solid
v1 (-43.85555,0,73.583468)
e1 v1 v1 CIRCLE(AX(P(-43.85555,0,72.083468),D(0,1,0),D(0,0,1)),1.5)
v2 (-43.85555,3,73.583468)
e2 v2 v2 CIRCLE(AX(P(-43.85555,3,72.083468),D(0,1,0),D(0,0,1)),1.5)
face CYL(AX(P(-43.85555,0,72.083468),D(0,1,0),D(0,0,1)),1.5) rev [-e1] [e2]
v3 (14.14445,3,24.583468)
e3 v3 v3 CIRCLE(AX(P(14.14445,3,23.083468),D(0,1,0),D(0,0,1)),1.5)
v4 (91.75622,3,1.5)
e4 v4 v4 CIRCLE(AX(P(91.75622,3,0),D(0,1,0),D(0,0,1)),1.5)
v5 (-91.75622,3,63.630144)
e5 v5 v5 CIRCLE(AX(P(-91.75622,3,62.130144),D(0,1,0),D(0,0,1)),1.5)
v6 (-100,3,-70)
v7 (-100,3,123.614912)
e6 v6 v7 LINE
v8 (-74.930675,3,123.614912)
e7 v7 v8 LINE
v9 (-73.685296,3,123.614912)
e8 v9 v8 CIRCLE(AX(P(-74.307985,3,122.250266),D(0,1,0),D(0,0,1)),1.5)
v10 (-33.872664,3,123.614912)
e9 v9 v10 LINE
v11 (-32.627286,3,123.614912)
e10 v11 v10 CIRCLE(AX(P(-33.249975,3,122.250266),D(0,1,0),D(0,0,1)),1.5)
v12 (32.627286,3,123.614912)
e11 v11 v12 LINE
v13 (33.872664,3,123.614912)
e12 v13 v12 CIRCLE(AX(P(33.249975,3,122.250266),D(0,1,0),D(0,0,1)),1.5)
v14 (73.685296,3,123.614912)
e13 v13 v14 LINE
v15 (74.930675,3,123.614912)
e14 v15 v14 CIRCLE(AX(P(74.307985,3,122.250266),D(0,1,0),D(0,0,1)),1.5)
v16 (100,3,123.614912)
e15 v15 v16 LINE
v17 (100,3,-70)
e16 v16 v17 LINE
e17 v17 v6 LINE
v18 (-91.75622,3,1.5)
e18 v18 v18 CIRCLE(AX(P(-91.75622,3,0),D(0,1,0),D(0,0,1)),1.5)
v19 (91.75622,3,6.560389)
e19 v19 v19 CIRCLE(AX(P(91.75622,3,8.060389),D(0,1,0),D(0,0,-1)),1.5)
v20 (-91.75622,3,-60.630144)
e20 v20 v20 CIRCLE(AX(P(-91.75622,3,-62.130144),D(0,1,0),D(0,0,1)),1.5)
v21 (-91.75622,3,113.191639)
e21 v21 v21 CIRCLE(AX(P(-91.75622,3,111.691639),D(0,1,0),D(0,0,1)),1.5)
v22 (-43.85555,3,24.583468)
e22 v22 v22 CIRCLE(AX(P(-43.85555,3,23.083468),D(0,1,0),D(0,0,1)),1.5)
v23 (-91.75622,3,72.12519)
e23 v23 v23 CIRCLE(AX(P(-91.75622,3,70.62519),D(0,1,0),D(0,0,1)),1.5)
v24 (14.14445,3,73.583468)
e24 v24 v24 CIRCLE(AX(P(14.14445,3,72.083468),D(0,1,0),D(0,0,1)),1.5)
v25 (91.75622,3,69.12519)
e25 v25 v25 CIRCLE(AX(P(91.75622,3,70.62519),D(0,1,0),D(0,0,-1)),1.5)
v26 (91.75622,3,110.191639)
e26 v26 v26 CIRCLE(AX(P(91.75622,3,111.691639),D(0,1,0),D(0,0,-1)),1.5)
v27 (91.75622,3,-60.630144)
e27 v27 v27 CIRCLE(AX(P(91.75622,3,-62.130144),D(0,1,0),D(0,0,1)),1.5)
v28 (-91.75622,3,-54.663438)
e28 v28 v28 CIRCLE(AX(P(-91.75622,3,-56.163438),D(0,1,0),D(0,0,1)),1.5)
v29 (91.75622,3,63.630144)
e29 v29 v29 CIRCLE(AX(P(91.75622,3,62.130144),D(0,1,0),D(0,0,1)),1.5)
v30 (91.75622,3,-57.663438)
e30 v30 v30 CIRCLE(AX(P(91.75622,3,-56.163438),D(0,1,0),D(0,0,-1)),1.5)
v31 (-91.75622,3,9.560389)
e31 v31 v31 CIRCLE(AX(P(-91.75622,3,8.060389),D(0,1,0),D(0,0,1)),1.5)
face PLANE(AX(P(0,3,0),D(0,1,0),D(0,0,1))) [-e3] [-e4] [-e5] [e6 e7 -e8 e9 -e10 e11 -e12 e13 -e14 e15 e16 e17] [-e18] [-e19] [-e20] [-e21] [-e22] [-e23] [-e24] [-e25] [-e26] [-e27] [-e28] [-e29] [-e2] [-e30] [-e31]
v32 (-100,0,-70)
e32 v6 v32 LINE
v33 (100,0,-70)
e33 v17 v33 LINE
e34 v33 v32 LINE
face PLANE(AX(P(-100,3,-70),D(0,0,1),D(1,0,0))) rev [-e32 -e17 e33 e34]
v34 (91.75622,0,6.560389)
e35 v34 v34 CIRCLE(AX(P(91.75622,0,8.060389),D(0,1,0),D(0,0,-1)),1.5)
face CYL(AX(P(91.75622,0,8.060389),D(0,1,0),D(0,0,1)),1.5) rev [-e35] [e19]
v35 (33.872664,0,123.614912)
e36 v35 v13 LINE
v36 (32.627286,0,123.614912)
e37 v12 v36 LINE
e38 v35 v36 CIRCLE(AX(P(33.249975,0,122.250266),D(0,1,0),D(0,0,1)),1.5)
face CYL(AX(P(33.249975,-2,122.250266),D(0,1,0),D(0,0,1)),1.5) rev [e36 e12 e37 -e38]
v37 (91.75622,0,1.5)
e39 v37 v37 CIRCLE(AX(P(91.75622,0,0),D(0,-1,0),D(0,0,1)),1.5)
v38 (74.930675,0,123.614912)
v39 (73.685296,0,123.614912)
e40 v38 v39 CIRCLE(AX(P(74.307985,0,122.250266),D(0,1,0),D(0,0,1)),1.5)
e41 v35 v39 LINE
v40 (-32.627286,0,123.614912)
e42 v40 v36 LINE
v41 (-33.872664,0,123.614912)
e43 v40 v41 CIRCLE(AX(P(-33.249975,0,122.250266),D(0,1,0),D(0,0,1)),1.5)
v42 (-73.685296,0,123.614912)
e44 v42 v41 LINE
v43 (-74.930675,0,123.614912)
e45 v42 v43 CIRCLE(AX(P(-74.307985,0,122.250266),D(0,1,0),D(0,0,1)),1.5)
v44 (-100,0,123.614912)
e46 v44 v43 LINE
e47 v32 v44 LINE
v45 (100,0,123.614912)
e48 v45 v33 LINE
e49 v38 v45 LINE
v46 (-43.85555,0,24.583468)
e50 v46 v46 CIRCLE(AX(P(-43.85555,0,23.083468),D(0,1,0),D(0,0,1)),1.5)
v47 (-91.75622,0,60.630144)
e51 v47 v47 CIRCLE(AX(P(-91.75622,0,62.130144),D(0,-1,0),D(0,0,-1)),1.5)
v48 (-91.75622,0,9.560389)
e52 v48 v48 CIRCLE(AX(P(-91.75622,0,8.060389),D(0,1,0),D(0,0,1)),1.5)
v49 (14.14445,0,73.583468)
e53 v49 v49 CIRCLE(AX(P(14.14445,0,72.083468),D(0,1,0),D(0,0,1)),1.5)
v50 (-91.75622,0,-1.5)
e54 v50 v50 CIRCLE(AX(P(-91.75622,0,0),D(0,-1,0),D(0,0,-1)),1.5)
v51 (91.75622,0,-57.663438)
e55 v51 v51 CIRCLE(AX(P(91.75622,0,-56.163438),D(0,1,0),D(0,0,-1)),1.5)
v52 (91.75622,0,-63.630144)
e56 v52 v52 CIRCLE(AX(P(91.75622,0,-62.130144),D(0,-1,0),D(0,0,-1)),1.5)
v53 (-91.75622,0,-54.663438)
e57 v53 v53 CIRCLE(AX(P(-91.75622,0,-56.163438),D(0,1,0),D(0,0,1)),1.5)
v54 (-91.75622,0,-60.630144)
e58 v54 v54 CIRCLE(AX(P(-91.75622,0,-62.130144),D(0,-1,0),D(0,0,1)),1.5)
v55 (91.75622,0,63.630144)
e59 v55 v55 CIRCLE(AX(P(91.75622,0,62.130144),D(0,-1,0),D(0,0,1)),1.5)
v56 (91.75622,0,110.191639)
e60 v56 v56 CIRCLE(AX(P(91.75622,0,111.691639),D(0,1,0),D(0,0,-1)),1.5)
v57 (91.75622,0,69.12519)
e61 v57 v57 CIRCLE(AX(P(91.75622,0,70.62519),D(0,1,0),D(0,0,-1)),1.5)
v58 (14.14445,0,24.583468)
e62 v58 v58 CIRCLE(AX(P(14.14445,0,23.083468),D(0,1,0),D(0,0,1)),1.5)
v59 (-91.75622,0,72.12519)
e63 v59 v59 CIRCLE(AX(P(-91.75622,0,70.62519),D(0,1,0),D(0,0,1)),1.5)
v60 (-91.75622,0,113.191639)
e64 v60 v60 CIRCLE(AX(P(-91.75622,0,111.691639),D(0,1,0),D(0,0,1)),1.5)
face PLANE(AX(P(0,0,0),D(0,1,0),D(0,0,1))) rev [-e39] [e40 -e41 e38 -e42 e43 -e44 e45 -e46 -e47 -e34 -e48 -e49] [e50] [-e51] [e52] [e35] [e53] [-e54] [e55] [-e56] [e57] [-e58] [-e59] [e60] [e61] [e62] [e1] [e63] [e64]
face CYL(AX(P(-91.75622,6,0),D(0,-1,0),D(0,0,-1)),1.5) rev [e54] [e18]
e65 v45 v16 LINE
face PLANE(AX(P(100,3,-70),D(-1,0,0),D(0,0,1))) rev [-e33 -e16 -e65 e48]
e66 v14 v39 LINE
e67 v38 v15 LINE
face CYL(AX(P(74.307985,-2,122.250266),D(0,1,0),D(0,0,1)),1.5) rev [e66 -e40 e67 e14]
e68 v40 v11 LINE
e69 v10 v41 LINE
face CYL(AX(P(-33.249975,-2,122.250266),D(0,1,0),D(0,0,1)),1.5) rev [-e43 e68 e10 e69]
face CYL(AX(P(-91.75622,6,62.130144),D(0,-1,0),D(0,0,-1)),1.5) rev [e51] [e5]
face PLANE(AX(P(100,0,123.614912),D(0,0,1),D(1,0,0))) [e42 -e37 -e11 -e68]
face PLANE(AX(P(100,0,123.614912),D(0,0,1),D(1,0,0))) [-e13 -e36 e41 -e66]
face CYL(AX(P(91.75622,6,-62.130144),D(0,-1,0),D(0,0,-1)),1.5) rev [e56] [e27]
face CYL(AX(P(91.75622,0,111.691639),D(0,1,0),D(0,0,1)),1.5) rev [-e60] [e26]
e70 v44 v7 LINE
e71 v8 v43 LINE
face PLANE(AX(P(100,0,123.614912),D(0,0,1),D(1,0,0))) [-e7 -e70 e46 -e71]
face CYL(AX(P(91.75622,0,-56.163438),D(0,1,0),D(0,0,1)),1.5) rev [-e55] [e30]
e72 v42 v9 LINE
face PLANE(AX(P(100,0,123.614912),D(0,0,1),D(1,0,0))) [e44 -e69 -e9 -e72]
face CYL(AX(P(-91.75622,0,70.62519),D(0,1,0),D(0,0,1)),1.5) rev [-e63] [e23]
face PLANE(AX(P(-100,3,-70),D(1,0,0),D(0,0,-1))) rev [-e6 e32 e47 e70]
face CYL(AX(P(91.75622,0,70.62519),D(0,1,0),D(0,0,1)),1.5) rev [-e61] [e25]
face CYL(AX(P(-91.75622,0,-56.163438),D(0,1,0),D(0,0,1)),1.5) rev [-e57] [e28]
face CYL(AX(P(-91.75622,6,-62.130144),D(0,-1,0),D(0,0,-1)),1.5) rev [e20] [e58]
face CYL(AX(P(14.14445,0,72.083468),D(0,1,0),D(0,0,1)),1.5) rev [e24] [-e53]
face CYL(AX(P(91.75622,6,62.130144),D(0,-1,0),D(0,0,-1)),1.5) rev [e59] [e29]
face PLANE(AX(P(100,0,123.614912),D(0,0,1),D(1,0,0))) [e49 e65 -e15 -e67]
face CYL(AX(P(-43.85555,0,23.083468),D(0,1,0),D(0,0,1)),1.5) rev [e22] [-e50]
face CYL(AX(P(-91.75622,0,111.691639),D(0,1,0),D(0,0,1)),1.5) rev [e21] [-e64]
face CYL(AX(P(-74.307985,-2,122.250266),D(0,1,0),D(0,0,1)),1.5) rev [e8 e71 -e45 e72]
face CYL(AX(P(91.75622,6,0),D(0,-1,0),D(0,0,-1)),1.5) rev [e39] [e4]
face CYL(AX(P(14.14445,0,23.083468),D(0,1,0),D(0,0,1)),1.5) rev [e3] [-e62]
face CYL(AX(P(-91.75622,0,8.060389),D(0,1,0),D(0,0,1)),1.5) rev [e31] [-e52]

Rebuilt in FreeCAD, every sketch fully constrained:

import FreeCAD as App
import Part
import Sketcher
from FreeCAD import Vector
Q = App.Units.Quantity


def add_polygon(sketch, points):
    """Adds a closed chain of lines whose ends are joined by coincident constraints."""
    first, n = sketch.GeometryCount, len(points)
    for a, b in zip(points, points[1:] + points[:1]):
        sketch.addGeometry(Part.LineSegment(App.Vector(*a, 0), App.Vector(*b, 0)), False)
    for i in range(n):
        sketch.addConstraint(Sketcher.Constraint("Coincident", first + i, 2, first + (i + 1) % n, 1))

doc = App.newDocument("Part")
body = doc.addObject("PartDesign::Body", "Body")

sketch1 = body.newObject("Sketcher::SketchObject", "Sketch")
sketch1.AttachmentSupport = (doc.getObject("XZ_Plane"), [""])
sketch1.MapMode = "FlatFace"
add_polygon(sketch1, [(-100, -70), (-100, 70), (100, 70), (100, -70)])
sketch1.addConstraint(Sketcher.Constraint("Vertical", 0))
sketch1.addConstraint(Sketcher.Constraint("Horizontal", 1))
sketch1.addConstraint(Sketcher.Constraint("Vertical", 2))
sketch1.addConstraint(Sketcher.Constraint("Horizontal", 3))
sketch1.addConstraint(Sketcher.Constraint("Symmetric", 0, 2, 2, 2, -1, 1))
sketch1.addConstraint(Sketcher.Constraint("DistanceX", 1, 1, 1, 2, Q("200 mm")))
sketch1.addConstraint(Sketcher.Constraint("DistanceY", 0, 1, 0, 2, Q("140 mm")))
pad1 = body.newObject("PartDesign::Pad", "Pad")
pad1.Profile = sketch1
pad1.Length = 3
pad1.Reversed = True

sketch2 = body.newObject("Sketcher::SketchObject", "Sketch001")
sketch2.AttachmentSupport = (doc.getObject("XZ_Plane"), [""])
sketch2.MapMode = "FlatFace"
sketch2.addGeometry(Part.Circle(Vector(91.75622, -62.130144, 0), Vector(0, 0, 1), 1.5), False)
sketch2.addGeometry(Part.Circle(Vector(-91.75622, -62.130144, 0), Vector(0, 0, 1), 1.5), False)
sketch2.addGeometry(Part.Circle(Vector(91.75622, 62.130144, 0), Vector(0, 0, 1), 1.5), False)
sketch2.addGeometry(Part.Circle(Vector(-91.75622, 62.130144, 0), Vector(0, 0, 1), 1.5), False)
sketch2.addGeometry(Part.Circle(Vector(-91.75622, 0, 0), Vector(0, 0, 1), 1.5), False)
sketch2.addGeometry(Part.Circle(Vector(91.75622, 0, 0), Vector(0, 0, 1), 1.5), False)
add_polygon(sketch2, [(-80, 60.210911), (-80, -70), (80, -70), (80, 60.210911)])
sketch2.addConstraint(Sketcher.Constraint("Vertical", 6))
sketch2.addConstraint(Sketcher.Constraint("Horizontal", 7))
sketch2.addConstraint(Sketcher.Constraint("Vertical", 8))
sketch2.addConstraint(Sketcher.Constraint("Horizontal", 9))
sketch2.addConstraint(Sketcher.Constraint("Equal", 0, 1))
sketch2.addConstraint(Sketcher.Constraint("Equal", 1, 2))
sketch2.addConstraint(Sketcher.Constraint("Equal", 2, 3))
sketch2.addConstraint(Sketcher.Constraint("Equal", 3, 4))
sketch2.addConstraint(Sketcher.Constraint("Equal", 4, 5))
sketch2.addConstraint(Sketcher.Constraint("Symmetric", 1, 3, 2, 3, -1, 1))
sketch2.addConstraint(Sketcher.Constraint("Symmetric", 0, 3, 3, 3, -1, 1))
sketch2.addConstraint(Sketcher.Constraint("Symmetric", 4, 3, 5, 3, -1, 1))
sketch2.addConstraint(Sketcher.Constraint("Symmetric", 0, 3, 1, 3, -2))
sketch2.addConstraint(Sketcher.Constraint("PointOnObject", 4, 3, -1))
sketch2.addConstraint(Sketcher.Constraint("Vertical", 3, 3, 4, 3))
sketch2.addConstraint(Sketcher.Constraint("Diameter", 0, Q("3 mm")))
sketch2.addConstraint(Sketcher.Constraint("DistanceX", 7, 1, 7, 2, Q("160 mm")))
sketch2.addConstraint(Sketcher.Constraint("DistanceX", 6, 2, -1, 1, Q("80 mm")))
sketch2.addConstraint(Sketcher.Constraint("DistanceY", 6, 2, -1, 1, Q("70 mm")))
sketch2.addConstraint(Sketcher.Constraint("DistanceY", 6, 2, 6, 1, Q("130.210911 mm")))
sketch2.addConstraint(Sketcher.Constraint("DistanceX", -1, 1, 0, 3, Q("91.75622 mm")))
sketch2.addConstraint(Sketcher.Constraint("DistanceY", 0, 3, -1, 1, Q("62.130144 mm")))
pocket1 = body.newObject("PartDesign::Pocket", "Pocket")
pocket1.Profile = sketch2
pocket1.Length = 6

sketch3 = body.newObject("Sketcher::SketchObject", "Sketch002")
sketch3.AttachmentSupport = (doc.getObject("XZ_Plane"), [""])
sketch3.MapMode = "FlatFace"
sketch3.AttachmentOffset = App.Placement(Vector(0, 0, -3), App.Rotation())
add_polygon(sketch3, [(81.941508, 70), (81.941508, 123.614912), (100, 123.614912), (100, 70)])
add_polygon(sketch3, [(-100, 70), (-100, 123.614912), (-81.941508, 123.614912), (-81.941508, 70)])
sketch3.addConstraint(Sketcher.Constraint("Vertical", 0))
sketch3.addConstraint(Sketcher.Constraint("Horizontal", 1))
sketch3.addConstraint(Sketcher.Constraint("Vertical", 2))
sketch3.addConstraint(Sketcher.Constraint("Horizontal", 3))
sketch3.addConstraint(Sketcher.Constraint("Vertical", 4))
sketch3.addConstraint(Sketcher.Constraint("Horizontal", 5))
sketch3.addConstraint(Sketcher.Constraint("Vertical", 6))
sketch3.addConstraint(Sketcher.Constraint("Horizontal", 7))
sketch3.addConstraint(Sketcher.Constraint("Symmetric", 1, 2, 4, 2, -2))
sketch3.addConstraint(Sketcher.Constraint("Symmetric", 3, 2, 6, 2, -2))
sketch3.addConstraint(Sketcher.Constraint("DistanceX", -1, 1, 1, 2, Q("100 mm")))
sketch3.addConstraint(Sketcher.Constraint("DistanceY", -1, 1, 2, 2, Q("70 mm")))
sketch3.addConstraint(Sketcher.Constraint("DistanceX", 1, 1, 1, 2, Q("18.058492 mm")))
sketch3.addConstraint(Sketcher.Constraint("DistanceY", 0, 1, 0, 2, Q("53.614912 mm")))
pad2 = body.newObject("PartDesign::Pad", "Pad001")
pad2.Profile = sketch3
pad2.Length = 3

sketch4 = body.newObject("Sketcher::SketchObject", "Sketch003")
sketch4.AttachmentSupport = (doc.getObject("XZ_Plane"), [""])
sketch4.MapMode = "FlatFace"
sketch4.AttachmentOffset = App.Placement(Vector(0, 0, -3), App.Rotation())
sketch4.addGeometry(Part.Circle(Vector(-91.75622, 111.691639, 0), Vector(0, 0, 1), 1.5), False)
sketch4.addGeometry(Part.Circle(Vector(91.75622, 111.691639, 0), Vector(0, 0, 1), 1.5), False)
sketch4.addConstraint(Sketcher.Constraint("Equal", 0, 1))
sketch4.addConstraint(Sketcher.Constraint("Symmetric", 0, 3, 1, 3, -2))
sketch4.addConstraint(Sketcher.Constraint("Diameter", 0, Q("3 mm")))
sketch4.addConstraint(Sketcher.Constraint("DistanceX", 0, 3, -1, 1, Q("91.75622 mm")))
sketch4.addConstraint(Sketcher.Constraint("DistanceY", -1, 1, 0, 3, Q("111.691639 mm")))
pocket2 = body.newObject("PartDesign::Pocket", "Pocket001")
pocket2.Profile = sketch4
pocket2.Length = 3
pocket2.Reversed = True

sketch5 = body.newObject("Sketcher::SketchObject", "Sketch004")
sketch5.AttachmentSupport = (doc.getObject("XY_Plane"), [""])
sketch5.MapMode = "FlatFace"
sketch5.AttachmentOffset = App.Placement(Vector(0, 0, 60.210911), App.Rotation())
add_polygon(sketch5, [(80, 3), (80, 0), (-80, 0), (-80, 3)])
sketch5.addConstraint(Sketcher.Constraint("Vertical", 0))
sketch5.addConstraint(Sketcher.Constraint("Horizontal", 1))
sketch5.addConstraint(Sketcher.Constraint("Vertical", 2))
sketch5.addConstraint(Sketcher.Constraint("Horizontal", 3))
sketch5.addConstraint(Sketcher.Constraint("Symmetric", 0, 2, 1, 2, -1, 1))
sketch5.addConstraint(Sketcher.Constraint("DistanceX", 1, 2, 1, 1, Q("160 mm")))
sketch5.addConstraint(Sketcher.Constraint("DistanceY", 0, 2, 0, 1, Q("3 mm")))
pad3 = body.newObject("PartDesign::Pad", "Pad002")
pad3.Profile = sketch5
pad3.Length = 130.210911
pad3.Reversed = True

sketch6 = body.newObject("Sketcher::SketchObject", "Sketch005")
sketch6.AttachmentSupport = (doc.getObject("XY_Plane"), [""])
sketch6.MapMode = "FlatFace"
sketch6.AttachmentOffset = App.Placement(Vector(0, 0, 70), App.Rotation())
add_polygon(sketch6, [(-81.941508, 3), (-81.941508, 0), (81.941508, 0), (81.941508, 3)])
sketch6.addConstraint(Sketcher.Constraint("Vertical", 0))
sketch6.addConstraint(Sketcher.Constraint("Horizontal", 1))
sketch6.addConstraint(Sketcher.Constraint("Vertical", 2))
sketch6.addConstraint(Sketcher.Constraint("Horizontal", 3))
sketch6.addConstraint(Sketcher.Constraint("Symmetric", 0, 2, 1, 2, -1, 1))
sketch6.addConstraint(Sketcher.Constraint("DistanceY", 0, 2, 0, 1, Q("3 mm")))
sketch6.addConstraint(Sketcher.Constraint("DistanceX", 1, 1, 1, 2, Q("163.883016 mm")))
pad4 = body.newObject("PartDesign::Pad", "Pad003")
pad4.Profile = sketch6
pad4.Length = 53.614912

sketch7 = body.newObject("Sketcher::SketchObject", "Sketch006")
sketch7.AttachmentSupport = (doc.getObject("XZ_Plane"), [""])
sketch7.MapMode = "FlatFace"
sketch7.AttachmentOffset = App.Placement(Vector(0, 0, -3), App.Rotation())
sketch7.addGeometry(Part.Circle(Vector(-74.307985, 122.250266, 0), Vector(0, 0, 1), 1.5), False)
sketch7.addGeometry(Part.Circle(Vector(-33.249975, 122.250266, 0), Vector(0, 0, 1), 1.5), False)
sketch7.addGeometry(Part.Circle(Vector(33.249975, 122.250266, 0), Vector(0, 0, 1), 1.5), False)
sketch7.addGeometry(Part.Circle(Vector(74.307985, 122.250266, 0), Vector(0, 0, 1), 1.5), False)
sketch7.addConstraint(Sketcher.Constraint("Equal", 0, 1))
sketch7.addConstraint(Sketcher.Constraint("Equal", 1, 2))
sketch7.addConstraint(Sketcher.Constraint("Equal", 2, 3))
sketch7.addConstraint(Sketcher.Constraint("Symmetric", 1, 3, 2, 3, -2))
sketch7.addConstraint(Sketcher.Constraint("Symmetric", 0, 3, 3, 3, -2))
sketch7.addConstraint(Sketcher.Constraint("Horizontal", 0, 3, 1, 3))
sketch7.addConstraint(Sketcher.Constraint("Diameter", 0, Q("3 mm")))
sketch7.addConstraint(Sketcher.Constraint("DistanceX", 0, 3, 1, 3, Q("41.058011 mm")))
sketch7.addConstraint(Sketcher.Constraint("DistanceX", 1, 3, 2, 3, Q("66.49995 mm")))
sketch7.addConstraint(Sketcher.Constraint("DistanceY", -1, 1, 0, 3, Q("122.250266 mm")))
pocket3 = body.newObject("PartDesign::Pocket", "Pocket002")
pocket3.Profile = sketch7
pocket3.Length = 5
pocket3.Reversed = True

sketch8 = body.newObject("Sketcher::SketchObject", "Sketch007")
sketch8.AttachmentSupport = (doc.getObject("XZ_Plane"), [""])
sketch8.MapMode = "FlatFace"
sketch8.AttachmentOffset = App.Placement(Vector(0, 0, -3), App.Rotation())
sketch8.addGeometry(Part.Circle(Vector(14.14445, 23.083468, 0), Vector(0, 0, 1), 1.5), False)
sketch8.addGeometry(Part.Circle(Vector(-43.85555, 23.083468, 0), Vector(0, 0, 1), 1.5), False)
sketch8.addGeometry(Part.Circle(Vector(-43.85555, 72.083468, 0), Vector(0, 0, 1), 1.5), False)
sketch8.addGeometry(Part.Circle(Vector(14.14445, 72.083468, 0), Vector(0, 0, 1), 1.5), False)
sketch8.addConstraint(Sketcher.Constraint("Equal", 0, 1))
sketch8.addConstraint(Sketcher.Constraint("Equal", 1, 2))
sketch8.addConstraint(Sketcher.Constraint("Equal", 2, 3))
sketch8.addConstraint(Sketcher.Constraint("Horizontal", 0, 3, 1, 3))
sketch8.addConstraint(Sketcher.Constraint("Horizontal", 2, 3, 3, 3))
sketch8.addConstraint(Sketcher.Constraint("Vertical", 1, 3, 2, 3))
sketch8.addConstraint(Sketcher.Constraint("Vertical", 0, 3, 3, 3))
sketch8.addConstraint(Sketcher.Constraint("Diameter", 0, Q("3 mm")))
sketch8.addConstraint(Sketcher.Constraint("DistanceX", 1, 3, 0, 3, Q("58 mm")))
sketch8.addConstraint(Sketcher.Constraint("DistanceY", 1, 3, 2, 3, Q("49 mm")))
sketch8.addConstraint(Sketcher.Constraint("DistanceX", -1, 1, 0, 3, Q("14.14445 mm")))
sketch8.addConstraint(Sketcher.Constraint("DistanceY", -1, 1, 0, 3, Q("23.083468 mm")))
pocket4 = body.newObject("PartDesign::Pocket", "Pocket003")
pocket4.Profile = sketch8
pocket4.Length = 3
pocket4.Reversed = True

sketch9 = body.newObject("Sketcher::SketchObject", "Sketch008")
sketch9.AttachmentSupport = (doc.getObject("XZ_Plane"), [""])
sketch9.MapMode = "FlatFace"
sketch9.AttachmentOffset = App.Placement(Vector(0, 0, -3), App.Rotation())
sketch9.addGeometry(Part.Circle(Vector(-91.75622, 70.62519, 0), Vector(0, 0, 1), 1.5), False)
sketch9.addGeometry(Part.Circle(Vector(-91.75622, 8.060389, 0), Vector(0, 0, 1), 1.5), False)
sketch9.addGeometry(Part.Circle(Vector(-91.75622, -56.163438, 0), Vector(0, 0, 1), 1.5), False)
sketch9.addGeometry(Part.Circle(Vector(91.75622, -56.163438, 0), Vector(0, 0, 1), 1.5), False)
sketch9.addGeometry(Part.Circle(Vector(91.75622, 8.060389, 0), Vector(0, 0, 1), 1.5), False)
sketch9.addGeometry(Part.Circle(Vector(91.75622, 70.62519, 0), Vector(0, 0, 1), 1.5), False)
sketch9.addConstraint(Sketcher.Constraint("Equal", 0, 1))
sketch9.addConstraint(Sketcher.Constraint("Equal", 1, 2))
sketch9.addConstraint(Sketcher.Constraint("Equal", 2, 3))
sketch9.addConstraint(Sketcher.Constraint("Equal", 3, 4))
sketch9.addConstraint(Sketcher.Constraint("Equal", 4, 5))
sketch9.addConstraint(Sketcher.Constraint("Symmetric", 2, 3, 3, 3, -2))
sketch9.addConstraint(Sketcher.Constraint("Symmetric", 1, 3, 4, 3, -2))
sketch9.addConstraint(Sketcher.Constraint("Symmetric", 0, 3, 5, 3, -2))
sketch9.addConstraint(Sketcher.Constraint("Vertical", 0, 3, 1, 3))
sketch9.addConstraint(Sketcher.Constraint("Vertical", 1, 3, 2, 3))
sketch9.addConstraint(Sketcher.Constraint("Diameter", 0, Q("3 mm")))
sketch9.addConstraint(Sketcher.Constraint("DistanceY", 1, 3, 0, 3, Q("62.564801 mm")))
sketch9.addConstraint(Sketcher.Constraint("DistanceX", 0, 3, -1, 1, Q("91.75622 mm")))
sketch9.addConstraint(Sketcher.Constraint("DistanceY", -1, 1, 0, 3, Q("70.62519 mm")))
sketch9.addConstraint(Sketcher.Constraint("DistanceY", 2, 3, -1, 1, Q("56.163438 mm")))
pocket5 = body.newObject("PartDesign::Pocket", "Pocket004")
pocket5.Profile = sketch9
pocket5.Length = 3
pocket5.Reversed = True

doc.recompute()
